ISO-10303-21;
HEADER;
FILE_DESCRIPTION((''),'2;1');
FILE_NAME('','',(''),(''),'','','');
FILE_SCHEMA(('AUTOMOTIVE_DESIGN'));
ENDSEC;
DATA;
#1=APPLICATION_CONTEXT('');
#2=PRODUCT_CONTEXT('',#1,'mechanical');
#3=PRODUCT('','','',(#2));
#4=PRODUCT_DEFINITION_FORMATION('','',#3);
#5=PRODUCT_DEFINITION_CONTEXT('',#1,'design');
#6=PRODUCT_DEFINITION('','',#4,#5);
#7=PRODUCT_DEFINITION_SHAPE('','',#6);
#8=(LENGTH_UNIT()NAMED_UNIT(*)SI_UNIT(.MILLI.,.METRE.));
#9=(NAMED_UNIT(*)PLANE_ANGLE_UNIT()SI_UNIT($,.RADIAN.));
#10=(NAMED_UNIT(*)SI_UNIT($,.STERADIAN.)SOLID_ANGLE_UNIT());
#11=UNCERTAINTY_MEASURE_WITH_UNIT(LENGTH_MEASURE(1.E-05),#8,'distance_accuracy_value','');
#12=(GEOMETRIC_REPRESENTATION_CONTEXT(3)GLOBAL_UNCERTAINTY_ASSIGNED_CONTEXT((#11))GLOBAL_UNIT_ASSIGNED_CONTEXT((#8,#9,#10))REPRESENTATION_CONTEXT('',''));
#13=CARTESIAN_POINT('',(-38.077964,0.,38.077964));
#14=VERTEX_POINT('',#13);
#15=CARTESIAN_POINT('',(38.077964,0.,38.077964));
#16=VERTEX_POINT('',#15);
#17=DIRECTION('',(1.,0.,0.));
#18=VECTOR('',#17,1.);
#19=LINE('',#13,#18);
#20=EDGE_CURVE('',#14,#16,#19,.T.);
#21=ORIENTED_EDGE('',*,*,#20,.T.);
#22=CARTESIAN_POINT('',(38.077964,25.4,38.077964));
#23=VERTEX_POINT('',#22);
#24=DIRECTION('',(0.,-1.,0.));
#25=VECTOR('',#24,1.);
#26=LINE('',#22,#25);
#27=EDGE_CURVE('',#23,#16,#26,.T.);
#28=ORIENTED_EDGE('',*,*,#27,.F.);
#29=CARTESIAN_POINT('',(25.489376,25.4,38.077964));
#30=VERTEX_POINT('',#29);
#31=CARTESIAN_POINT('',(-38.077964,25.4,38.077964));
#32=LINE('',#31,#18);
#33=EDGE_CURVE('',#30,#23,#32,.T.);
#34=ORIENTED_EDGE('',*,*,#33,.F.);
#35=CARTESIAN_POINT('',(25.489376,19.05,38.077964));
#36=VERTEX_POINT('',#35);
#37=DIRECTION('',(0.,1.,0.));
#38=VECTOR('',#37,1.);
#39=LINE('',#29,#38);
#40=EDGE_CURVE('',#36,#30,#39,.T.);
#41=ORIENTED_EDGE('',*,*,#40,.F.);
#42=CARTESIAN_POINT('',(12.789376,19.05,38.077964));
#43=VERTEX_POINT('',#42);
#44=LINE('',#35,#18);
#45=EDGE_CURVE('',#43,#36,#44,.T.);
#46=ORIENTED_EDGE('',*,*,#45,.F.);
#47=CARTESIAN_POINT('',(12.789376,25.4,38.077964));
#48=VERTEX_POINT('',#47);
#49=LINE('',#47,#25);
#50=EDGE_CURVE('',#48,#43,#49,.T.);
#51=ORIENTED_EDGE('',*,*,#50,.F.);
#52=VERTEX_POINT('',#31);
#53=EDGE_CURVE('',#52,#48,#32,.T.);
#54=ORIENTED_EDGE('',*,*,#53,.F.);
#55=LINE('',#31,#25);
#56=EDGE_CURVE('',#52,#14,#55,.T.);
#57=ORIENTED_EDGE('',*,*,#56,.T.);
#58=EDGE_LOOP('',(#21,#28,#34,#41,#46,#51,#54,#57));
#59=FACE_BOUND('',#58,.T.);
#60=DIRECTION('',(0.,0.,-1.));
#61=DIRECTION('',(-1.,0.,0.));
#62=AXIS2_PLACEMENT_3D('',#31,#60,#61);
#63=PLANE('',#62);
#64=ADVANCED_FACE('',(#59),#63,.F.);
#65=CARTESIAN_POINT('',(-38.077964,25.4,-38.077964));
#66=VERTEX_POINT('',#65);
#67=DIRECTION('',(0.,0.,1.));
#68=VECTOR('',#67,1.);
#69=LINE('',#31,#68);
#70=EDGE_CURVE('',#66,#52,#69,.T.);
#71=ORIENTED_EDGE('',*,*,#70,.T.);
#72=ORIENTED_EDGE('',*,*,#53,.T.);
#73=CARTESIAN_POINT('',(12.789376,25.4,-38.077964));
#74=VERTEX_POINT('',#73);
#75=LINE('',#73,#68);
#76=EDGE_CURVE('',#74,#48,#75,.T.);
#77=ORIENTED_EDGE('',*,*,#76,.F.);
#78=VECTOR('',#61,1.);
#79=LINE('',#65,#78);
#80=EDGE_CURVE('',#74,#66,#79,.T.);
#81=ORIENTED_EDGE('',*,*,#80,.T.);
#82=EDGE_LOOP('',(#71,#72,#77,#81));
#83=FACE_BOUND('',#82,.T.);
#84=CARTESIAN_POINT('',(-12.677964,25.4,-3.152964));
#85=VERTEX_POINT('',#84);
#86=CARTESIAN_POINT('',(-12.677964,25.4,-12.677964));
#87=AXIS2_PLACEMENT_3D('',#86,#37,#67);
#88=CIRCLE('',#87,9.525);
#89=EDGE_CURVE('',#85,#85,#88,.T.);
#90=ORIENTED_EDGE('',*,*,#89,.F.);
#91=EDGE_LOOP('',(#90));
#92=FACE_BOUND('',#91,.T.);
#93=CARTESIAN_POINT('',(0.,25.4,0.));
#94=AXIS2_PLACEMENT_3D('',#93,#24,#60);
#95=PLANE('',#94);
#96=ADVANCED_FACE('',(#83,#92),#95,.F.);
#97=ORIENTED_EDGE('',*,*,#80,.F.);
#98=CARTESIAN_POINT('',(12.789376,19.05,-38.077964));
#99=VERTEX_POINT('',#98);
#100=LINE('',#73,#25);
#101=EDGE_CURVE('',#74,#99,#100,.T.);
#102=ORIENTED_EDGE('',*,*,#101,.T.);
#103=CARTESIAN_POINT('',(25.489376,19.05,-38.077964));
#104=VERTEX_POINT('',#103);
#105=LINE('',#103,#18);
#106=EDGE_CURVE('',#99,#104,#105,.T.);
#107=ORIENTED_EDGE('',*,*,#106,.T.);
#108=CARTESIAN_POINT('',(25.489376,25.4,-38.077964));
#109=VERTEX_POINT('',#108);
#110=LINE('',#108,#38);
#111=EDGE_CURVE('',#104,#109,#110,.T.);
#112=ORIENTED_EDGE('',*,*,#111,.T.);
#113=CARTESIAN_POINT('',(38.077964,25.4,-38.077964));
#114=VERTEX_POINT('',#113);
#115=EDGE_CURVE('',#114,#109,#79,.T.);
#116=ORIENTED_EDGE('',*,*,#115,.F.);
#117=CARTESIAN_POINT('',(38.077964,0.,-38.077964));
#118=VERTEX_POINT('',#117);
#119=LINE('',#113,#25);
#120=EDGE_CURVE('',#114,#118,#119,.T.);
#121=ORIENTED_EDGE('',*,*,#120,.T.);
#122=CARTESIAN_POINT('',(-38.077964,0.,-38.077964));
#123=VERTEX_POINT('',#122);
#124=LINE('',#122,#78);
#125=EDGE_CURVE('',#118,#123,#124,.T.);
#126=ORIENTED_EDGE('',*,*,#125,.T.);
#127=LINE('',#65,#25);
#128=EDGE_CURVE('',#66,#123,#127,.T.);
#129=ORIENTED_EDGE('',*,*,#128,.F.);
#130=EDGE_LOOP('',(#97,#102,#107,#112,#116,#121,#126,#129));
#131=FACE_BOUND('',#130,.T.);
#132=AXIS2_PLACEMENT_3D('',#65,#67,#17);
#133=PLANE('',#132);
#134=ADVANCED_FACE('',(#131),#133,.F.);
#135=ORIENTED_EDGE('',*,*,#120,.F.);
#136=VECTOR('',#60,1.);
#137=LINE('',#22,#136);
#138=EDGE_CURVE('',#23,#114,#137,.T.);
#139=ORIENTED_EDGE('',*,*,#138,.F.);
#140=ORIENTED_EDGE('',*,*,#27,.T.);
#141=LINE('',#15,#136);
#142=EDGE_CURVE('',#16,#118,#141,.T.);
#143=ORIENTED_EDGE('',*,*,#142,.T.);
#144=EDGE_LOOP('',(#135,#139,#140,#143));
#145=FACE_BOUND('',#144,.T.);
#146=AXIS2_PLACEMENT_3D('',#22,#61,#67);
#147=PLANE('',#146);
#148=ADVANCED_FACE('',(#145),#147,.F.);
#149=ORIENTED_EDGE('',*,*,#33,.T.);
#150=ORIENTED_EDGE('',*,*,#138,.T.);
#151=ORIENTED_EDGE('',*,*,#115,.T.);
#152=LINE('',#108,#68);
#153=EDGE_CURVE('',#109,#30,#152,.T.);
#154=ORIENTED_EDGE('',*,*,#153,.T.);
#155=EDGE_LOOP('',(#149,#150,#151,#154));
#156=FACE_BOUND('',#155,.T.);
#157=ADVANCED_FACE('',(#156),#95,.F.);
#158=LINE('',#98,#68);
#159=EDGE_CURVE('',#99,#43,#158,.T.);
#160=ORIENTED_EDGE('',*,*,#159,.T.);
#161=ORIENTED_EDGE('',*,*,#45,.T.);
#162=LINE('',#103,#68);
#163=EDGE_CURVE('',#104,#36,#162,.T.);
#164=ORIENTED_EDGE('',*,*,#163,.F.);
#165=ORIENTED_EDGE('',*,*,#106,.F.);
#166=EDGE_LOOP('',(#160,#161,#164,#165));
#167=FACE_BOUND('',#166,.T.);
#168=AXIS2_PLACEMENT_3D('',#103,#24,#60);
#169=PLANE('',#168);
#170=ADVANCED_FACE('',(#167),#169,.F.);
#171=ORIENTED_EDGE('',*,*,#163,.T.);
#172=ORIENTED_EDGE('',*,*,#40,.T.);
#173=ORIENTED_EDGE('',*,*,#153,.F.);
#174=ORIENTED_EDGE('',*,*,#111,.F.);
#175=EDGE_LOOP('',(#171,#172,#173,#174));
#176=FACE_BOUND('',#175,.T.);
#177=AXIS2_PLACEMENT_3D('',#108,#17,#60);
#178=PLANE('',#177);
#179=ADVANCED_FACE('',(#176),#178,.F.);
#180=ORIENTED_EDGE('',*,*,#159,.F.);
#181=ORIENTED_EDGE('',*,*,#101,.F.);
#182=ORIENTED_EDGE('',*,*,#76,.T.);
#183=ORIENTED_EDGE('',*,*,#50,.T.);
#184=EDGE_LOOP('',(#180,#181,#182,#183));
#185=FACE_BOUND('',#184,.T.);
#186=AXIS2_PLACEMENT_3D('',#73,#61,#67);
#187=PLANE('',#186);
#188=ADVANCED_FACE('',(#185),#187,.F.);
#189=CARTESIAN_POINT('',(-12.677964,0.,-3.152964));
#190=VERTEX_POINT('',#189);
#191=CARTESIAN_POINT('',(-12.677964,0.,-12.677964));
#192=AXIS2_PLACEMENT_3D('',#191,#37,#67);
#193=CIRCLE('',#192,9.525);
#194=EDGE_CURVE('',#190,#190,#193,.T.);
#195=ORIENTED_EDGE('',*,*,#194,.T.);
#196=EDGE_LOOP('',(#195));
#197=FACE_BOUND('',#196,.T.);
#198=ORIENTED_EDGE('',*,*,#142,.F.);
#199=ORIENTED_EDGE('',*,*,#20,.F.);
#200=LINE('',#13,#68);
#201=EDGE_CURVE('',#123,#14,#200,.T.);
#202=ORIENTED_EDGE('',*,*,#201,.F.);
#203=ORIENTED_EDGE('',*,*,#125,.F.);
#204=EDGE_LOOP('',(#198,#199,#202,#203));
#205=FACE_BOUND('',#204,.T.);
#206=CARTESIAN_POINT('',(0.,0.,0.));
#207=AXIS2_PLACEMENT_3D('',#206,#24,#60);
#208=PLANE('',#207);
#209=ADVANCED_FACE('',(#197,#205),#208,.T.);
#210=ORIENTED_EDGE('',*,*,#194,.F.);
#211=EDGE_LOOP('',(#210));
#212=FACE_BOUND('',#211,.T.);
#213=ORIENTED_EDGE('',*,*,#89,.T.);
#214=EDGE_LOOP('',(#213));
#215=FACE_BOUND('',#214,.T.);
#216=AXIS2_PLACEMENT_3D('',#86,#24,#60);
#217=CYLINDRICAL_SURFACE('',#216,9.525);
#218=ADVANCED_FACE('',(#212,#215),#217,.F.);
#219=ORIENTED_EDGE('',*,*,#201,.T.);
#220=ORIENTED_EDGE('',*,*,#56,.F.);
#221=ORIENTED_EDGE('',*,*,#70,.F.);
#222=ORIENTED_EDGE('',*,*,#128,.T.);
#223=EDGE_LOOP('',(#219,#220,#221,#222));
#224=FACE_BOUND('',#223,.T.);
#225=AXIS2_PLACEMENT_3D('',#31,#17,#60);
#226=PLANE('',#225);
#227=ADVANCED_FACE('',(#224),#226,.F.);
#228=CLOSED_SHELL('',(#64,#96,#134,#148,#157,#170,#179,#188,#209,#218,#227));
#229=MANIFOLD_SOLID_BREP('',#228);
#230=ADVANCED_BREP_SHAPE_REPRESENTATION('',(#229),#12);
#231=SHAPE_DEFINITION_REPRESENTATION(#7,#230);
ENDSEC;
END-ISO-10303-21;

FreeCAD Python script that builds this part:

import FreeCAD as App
import Part
import Sketcher
Q = App.Units.Quantity

doc = App.newDocument("Part")
body = doc.addObject("PartDesign::Body", "Body")

# Sketch on XZ plane
sketch1 = body.newObject("Sketcher::SketchObject", "Sketch")
sketch1.AttachmentSupport = (doc.getObject("XZ_Plane"), [""])
sketch1.MapMode = "FlatFace"
sketch1.addGeometry(Part.LineSegment(App.Vector(-38, -38, 0), App.Vector(-38, 38, 0)), False)
sketch1.addGeometry(Part.LineSegment(App.Vector(-38, 38, 0), App.Vector(38, 38, 0)), False)
sketch1.addGeometry(Part.LineSegment(App.Vector(38, 38, 0), App.Vector(38, -38, 0)), False)
sketch1.addGeometry(Part.LineSegment(App.Vector(38, -38, 0), App.Vector(-38, -38, 0)), False)
sketch1.addGeometry(Part.Circle(App.Vector(-13, -13, 0), App.Vector(0, 0, 1), 10), False)
sketch1.addConstraint(Sketcher.Constraint("Coincident", 0, 2, 1, 1))
sketch1.addConstraint(Sketcher.Constraint("Coincident", 1, 2, 2, 1))
sketch1.addConstraint(Sketcher.Constraint("Coincident", 2, 2, 3, 1))
sketch1.addConstraint(Sketcher.Constraint("Coincident", 3, 2, 0, 1))
sketch1.addConstraint(Sketcher.Constraint("Vertical", 0))
sketch1.addConstraint(Sketcher.Constraint("Horizontal", 1))
sketch1.addConstraint(Sketcher.Constraint("Vertical", 2))
sketch1.addConstraint(Sketcher.Constraint("Horizontal", 3))
sketch1.addConstraint(Sketcher.Constraint("Symmetric", 0, 2, 2, 2, -1, 1))
sketch1.addConstraint(Sketcher.Constraint("Equal", 3, 0))
sketch1.addConstraint(Sketcher.Constraint("Diameter", 4, Q("0.75 in")))
sketch1.addConstraint(Sketcher.Constraint("DistanceX", 0, 2, 4, 3, Q("1 in")))
sketch1.addConstraint(Sketcher.Constraint("DistanceY", 2, 2, 4, 3, Q("1 in")))
sketch1.addConstraint(Sketcher.Constraint("DistanceX", 1, 1, 1, 2, Q("76.155927 mm")))
pad1 = body.newObject("PartDesign::Pad", "Pad")
pad1.Profile = sketch1
pad1.Length = Q("1 in")
pad1.Reversed = True

# Sketch on XY plane
sketch2 = body.newObject("Sketcher::SketchObject", "Sketch001")
sketch2.AttachmentSupport = (doc.getObject("XY_Plane"), [""])
sketch2.MapMode = "FlatFace"
sketch2.AttachmentOffset = App.Placement(App.Vector(0, 0, 38.077964), App.Rotation())
sketch2.addGeometry(Part.LineSegment(App.Vector(13, 25, 0), App.Vector(13, 19, 0)), False)
sketch2.addGeometry(Part.LineSegment(App.Vector(13, 19, 0), App.Vector(25, 19, 0)), False)
sketch2.addGeometry(Part.LineSegment(App.Vector(25, 19, 0), App.Vector(25, 25, 0)), False)
sketch2.addGeometry(Part.LineSegment(App.Vector(25, 25, 0), App.Vector(13, 25, 0)), False)
sketch2.addConstraint(Sketcher.Constraint("Coincident", 0, 2, 1, 1))
sketch2.addConstraint(Sketcher.Constraint("Coincident", 1, 2, 2, 1))
sketch2.addConstraint(Sketcher.Constraint("Coincident", 2, 2, 3, 1))
sketch2.addConstraint(Sketcher.Constraint("Coincident", 3, 2, 0, 1))
sketch2.addConstraint(Sketcher.Constraint("Vertical", 0))
sketch2.addConstraint(Sketcher.Constraint("Horizontal", 1))
sketch2.addConstraint(Sketcher.Constraint("Vertical", 2))
sketch2.addConstraint(Sketcher.Constraint("Horizontal", 3))
sketch2.addConstraint(Sketcher.Constraint("DistanceX", 1, 1, 1, 2, Q("0.5 in")))
sketch2.addConstraint(Sketcher.Constraint("DistanceY", -1, 1, 2, 2, Q("1 in")))
sketch2.addConstraint(Sketcher.Constraint("DistanceY", 0, 2, 0, 1, Q("0.25 in")))
sketch2.addConstraint(Sketcher.Constraint("DistanceX", -1, 1, 0, 2, Q("12.789376 mm")))
pocket1 = body.newObject("PartDesign::Pocket", "Pocket")
pocket1.Profile = sketch2
pocket1.Type = "ThroughAll"

doc.recompute()
